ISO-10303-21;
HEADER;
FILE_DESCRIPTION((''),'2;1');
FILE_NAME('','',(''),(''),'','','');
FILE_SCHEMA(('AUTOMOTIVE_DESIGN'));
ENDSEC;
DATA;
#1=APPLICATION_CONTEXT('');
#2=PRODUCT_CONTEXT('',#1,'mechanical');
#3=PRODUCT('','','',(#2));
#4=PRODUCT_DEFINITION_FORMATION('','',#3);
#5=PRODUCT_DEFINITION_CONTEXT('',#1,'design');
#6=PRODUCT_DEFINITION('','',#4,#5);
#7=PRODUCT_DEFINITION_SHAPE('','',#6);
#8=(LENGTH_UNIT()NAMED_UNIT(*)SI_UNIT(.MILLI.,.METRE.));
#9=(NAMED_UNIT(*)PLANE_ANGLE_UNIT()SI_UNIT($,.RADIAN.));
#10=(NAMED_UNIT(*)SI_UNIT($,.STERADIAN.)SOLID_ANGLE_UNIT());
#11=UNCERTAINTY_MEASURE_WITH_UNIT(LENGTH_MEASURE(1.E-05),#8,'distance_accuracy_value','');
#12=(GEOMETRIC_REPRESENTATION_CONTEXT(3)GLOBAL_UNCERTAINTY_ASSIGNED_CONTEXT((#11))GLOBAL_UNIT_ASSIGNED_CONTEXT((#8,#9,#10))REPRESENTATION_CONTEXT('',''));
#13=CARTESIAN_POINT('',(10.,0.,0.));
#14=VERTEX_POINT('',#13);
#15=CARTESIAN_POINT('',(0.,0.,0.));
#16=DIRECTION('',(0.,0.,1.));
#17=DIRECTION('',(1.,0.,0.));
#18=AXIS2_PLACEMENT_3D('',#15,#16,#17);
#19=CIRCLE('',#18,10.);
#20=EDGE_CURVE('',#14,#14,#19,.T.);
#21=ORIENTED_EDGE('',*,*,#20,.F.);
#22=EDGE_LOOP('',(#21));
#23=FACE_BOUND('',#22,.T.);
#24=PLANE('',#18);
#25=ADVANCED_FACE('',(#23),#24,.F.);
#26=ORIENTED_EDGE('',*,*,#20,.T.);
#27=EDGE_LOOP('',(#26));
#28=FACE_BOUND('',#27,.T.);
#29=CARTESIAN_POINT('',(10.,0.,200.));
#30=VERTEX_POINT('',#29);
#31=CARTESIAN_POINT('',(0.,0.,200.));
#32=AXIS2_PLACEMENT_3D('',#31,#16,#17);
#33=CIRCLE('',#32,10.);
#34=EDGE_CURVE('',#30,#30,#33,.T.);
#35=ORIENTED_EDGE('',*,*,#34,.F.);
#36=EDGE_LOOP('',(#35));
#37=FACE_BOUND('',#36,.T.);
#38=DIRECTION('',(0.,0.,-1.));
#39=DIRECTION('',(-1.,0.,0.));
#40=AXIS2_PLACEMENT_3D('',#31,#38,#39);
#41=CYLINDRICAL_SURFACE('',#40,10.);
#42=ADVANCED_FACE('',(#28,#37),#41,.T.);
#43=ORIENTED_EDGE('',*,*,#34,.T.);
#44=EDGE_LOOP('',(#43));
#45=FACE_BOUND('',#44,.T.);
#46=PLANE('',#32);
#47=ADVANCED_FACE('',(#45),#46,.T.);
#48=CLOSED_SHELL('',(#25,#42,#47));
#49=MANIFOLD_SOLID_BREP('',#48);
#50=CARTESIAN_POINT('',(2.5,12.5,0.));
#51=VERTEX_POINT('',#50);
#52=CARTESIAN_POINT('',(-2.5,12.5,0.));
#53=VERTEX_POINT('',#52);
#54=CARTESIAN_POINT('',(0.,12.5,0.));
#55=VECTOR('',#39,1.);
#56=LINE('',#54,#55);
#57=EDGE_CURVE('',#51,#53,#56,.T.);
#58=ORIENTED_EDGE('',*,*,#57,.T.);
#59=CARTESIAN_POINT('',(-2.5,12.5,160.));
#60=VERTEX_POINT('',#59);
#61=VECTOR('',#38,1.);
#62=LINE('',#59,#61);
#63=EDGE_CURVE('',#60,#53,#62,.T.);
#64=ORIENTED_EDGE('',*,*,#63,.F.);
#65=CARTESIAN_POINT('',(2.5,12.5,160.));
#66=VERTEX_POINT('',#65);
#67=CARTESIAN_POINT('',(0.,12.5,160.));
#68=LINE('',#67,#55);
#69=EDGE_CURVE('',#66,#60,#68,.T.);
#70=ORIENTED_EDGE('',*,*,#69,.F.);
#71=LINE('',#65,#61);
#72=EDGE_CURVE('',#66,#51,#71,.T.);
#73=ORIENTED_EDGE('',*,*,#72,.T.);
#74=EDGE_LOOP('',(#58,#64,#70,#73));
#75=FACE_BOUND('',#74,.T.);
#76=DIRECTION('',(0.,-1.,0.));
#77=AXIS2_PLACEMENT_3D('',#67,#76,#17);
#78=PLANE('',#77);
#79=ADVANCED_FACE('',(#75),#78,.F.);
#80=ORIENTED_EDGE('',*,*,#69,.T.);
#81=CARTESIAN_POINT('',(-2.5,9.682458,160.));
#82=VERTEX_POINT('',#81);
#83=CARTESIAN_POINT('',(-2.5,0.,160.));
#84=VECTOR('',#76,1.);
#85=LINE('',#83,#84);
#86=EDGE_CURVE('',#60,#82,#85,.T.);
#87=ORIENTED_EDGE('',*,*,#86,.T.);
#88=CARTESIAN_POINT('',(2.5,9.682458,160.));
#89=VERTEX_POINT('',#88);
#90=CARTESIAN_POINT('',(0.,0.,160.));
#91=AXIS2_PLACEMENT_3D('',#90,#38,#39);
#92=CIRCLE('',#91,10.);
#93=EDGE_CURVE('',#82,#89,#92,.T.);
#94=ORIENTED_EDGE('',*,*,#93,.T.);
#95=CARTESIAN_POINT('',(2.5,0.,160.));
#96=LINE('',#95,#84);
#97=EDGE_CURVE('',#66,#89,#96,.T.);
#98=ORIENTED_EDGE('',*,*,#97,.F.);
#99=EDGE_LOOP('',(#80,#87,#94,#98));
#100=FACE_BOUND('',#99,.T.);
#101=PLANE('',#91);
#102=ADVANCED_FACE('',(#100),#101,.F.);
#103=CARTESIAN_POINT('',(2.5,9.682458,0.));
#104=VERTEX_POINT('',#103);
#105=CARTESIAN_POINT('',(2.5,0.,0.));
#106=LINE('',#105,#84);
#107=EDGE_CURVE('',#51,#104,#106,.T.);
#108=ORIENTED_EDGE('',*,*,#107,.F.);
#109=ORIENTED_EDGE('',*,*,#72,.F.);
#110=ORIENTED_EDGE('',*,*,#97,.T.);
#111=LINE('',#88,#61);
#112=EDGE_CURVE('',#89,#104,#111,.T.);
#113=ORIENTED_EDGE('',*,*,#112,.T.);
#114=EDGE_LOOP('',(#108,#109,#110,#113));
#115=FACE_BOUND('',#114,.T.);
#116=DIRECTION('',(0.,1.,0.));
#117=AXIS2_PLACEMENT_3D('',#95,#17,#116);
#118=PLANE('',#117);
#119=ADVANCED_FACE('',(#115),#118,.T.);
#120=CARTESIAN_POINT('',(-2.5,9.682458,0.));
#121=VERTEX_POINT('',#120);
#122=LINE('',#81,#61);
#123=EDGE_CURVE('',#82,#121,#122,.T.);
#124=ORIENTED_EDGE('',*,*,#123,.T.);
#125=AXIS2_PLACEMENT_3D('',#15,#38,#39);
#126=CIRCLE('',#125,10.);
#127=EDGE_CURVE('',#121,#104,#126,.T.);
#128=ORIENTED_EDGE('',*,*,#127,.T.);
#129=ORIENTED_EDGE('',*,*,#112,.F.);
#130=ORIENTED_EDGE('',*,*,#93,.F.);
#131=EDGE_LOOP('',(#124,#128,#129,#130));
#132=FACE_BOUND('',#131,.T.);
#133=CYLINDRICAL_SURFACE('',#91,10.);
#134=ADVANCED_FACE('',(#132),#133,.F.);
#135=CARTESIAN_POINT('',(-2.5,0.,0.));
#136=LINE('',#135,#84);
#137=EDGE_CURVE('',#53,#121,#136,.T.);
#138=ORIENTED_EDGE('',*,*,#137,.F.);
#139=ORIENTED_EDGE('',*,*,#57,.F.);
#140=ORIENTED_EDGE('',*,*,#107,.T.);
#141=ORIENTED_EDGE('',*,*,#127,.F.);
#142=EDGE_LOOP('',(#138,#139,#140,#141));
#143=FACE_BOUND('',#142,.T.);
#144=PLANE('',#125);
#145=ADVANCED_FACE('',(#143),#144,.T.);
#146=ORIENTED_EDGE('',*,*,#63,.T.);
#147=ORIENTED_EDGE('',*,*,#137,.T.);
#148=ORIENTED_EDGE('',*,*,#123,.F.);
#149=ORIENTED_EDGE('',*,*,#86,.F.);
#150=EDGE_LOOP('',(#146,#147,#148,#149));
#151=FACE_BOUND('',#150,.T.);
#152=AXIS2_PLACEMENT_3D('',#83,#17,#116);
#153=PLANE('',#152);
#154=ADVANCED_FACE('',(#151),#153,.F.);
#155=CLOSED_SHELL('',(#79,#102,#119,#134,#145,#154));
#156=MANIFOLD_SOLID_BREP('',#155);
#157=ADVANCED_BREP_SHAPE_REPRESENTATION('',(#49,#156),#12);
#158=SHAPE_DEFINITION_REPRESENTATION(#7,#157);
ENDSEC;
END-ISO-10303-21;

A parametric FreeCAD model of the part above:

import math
import FreeCAD as App
import Part
import Sketcher
from FreeCAD import Vector

doc = App.newDocument("Part")
body = doc.addObject("PartDesign::Body", "Body")

sketch1 = body.newObject("Sketcher::SketchObject", "Sketch")
sketch1.AttachmentSupport = (doc.getObject("XY_Plane"), [""])
sketch1.MapMode = "FlatFace"
sketch1.addGeometry(Part.Circle(Vector(0, 0, 0), Vector(0, 0, 1), 10), False)
sketch1.addConstraint(Sketcher.Constraint("Coincident", 0, 3, -1, 1))
sketch1.addConstraint(Sketcher.Constraint("Diameter", 0, 20.0))
pad1 = body.newObject("PartDesign::Pad", "Pad")
pad1.Profile = sketch1
pad1.Length = 200
body2 = doc.addObject("PartDesign::Body", "Body001")

sketch2 = body2.newObject("Sketcher::SketchObject", "Sketch001")
sketch2.AttachmentSupport = (doc.getObject("XY_Plane001"), [""])
sketch2.MapMode = "FlatFace"
sketch2.addGeometry(Part.LineSegment(Vector(-2.5, 12.5, 0), Vector(2.5, 12.5, 0)), False)
sketch2.addGeometry(Part.LineSegment(Vector(2.5, 12.5, 0), Vector(2.5, 9.682458, 0)), False)
sketch2.addGeometry(Part.ArcOfCircle(Part.Circle(Vector(0, 0, 0), Vector(0, 0, 1), 10), math.radians(75.522488), math.radians(104.477512)), False)
sketch2.addGeometry(Part.LineSegment(Vector(-2.5, 9.682458, 0), Vector(-2.5, 12.5, 0)), False)
sketch2.addConstraint(Sketcher.Constraint("Coincident", 0, 2, 1, 1))
sketch2.addConstraint(Sketcher.Constraint("Coincident", 1, 2, 2, 1))
sketch2.addConstraint(Sketcher.Constraint("Coincident", 2, 2, 3, 1))
sketch2.addConstraint(Sketcher.Constraint("Coincident", 3, 2, 0, 1))
sketch2.addConstraint(Sketcher.Constraint("Horizontal", 0))
sketch2.addConstraint(Sketcher.Constraint("Vertical", 1))
sketch2.addConstraint(Sketcher.Constraint("Vertical", 3))
sketch2.addConstraint(Sketcher.Constraint("Coincident", 2, 3, -1, 1))
sketch2.addConstraint(Sketcher.Constraint("Horizontal", 1, 2, 2, 2))
sketch2.addConstraint(Sketcher.Constraint("Radius", 2, 10.0))
sketch2.addConstraint(Sketcher.Constraint("DistanceX", 0, 1, 0, 2, 5.0))
sketch2.addConstraint(Sketcher.Constraint("DistanceY", -1, 1, 0, 2, 12.5))
pad2 = body2.newObject("PartDesign::Pad", "Pad001")
pad2.Profile = sketch2
pad2.Length = 160

doc.recompute()
